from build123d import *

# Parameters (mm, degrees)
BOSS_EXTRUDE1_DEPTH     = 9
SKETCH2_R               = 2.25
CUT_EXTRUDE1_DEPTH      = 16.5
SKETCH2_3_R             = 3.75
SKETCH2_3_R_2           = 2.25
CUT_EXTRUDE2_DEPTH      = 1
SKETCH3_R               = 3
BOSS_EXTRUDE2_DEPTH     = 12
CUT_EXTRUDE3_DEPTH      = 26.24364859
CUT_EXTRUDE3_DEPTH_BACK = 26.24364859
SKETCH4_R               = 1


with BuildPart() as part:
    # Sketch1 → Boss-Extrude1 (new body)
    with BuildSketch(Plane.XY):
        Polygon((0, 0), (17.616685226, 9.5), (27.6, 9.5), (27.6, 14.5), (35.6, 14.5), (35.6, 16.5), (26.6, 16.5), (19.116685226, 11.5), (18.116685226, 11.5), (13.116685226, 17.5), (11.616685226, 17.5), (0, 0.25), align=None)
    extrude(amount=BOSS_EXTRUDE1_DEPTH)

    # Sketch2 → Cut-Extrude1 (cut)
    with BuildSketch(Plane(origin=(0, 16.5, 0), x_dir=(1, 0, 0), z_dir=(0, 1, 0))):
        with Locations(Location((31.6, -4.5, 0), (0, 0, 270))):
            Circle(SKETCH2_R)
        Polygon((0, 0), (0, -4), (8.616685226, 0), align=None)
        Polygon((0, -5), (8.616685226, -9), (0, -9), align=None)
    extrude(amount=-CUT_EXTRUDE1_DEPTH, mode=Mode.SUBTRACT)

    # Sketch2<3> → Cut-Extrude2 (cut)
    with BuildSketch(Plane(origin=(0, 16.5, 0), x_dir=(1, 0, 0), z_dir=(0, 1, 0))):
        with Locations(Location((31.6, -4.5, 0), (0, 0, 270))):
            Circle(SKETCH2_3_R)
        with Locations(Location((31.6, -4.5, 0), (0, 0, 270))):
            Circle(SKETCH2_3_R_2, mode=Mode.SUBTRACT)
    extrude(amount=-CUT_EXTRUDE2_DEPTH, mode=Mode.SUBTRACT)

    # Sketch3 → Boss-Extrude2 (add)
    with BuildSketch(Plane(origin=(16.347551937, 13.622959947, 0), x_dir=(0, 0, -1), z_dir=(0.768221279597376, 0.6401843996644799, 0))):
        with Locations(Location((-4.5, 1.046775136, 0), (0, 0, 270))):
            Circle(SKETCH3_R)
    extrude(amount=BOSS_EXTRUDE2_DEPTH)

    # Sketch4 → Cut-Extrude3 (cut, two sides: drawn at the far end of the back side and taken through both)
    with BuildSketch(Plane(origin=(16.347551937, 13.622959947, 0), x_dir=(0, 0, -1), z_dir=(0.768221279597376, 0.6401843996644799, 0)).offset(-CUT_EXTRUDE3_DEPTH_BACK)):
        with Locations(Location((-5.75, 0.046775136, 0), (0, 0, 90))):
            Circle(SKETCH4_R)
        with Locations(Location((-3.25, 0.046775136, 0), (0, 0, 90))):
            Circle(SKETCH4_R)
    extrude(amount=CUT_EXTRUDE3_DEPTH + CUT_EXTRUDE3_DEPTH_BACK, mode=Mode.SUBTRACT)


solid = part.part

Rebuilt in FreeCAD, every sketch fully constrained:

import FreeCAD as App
import Part
import Sketcher
Q = App.Units.Quantity

doc = App.newDocument("Part")
body = doc.addObject("PartDesign::Body", "Body")

# Sketch on XY plane
sketch1 = body.newObject("Sketcher::SketchObject", "Sketch")
sketch1.AttachmentSupport = (doc.getObject("XY_Plane"), [""])
sketch1.MapMode = "FlatFace"
sketch1.addGeometry(Part.LineSegment(App.Vector(0, 0, 0), App.Vector(17.62, 9.5, 0)), False)
sketch1.addGeometry(Part.LineSegment(App.Vector(17.62, 9.5, 0), App.Vector(27.6, 9.5, 0)), False)
sketch1.addGeometry(Part.LineSegment(App.Vector(27.6, 9.5, 0), App.Vector(27.6, 14.5, 0)), False)
sketch1.addGeometry(Part.LineSegment(App.Vector(27.6, 14.5, 0), App.Vector(35.6, 14.5, 0)), False)
sketch1.addGeometry(Part.LineSegment(App.Vector(35.6, 14.5, 0), App.Vector(35.6, 16.5, 0)), False)
sketch1.addGeometry(Part.LineSegment(App.Vector(35.6, 16.5, 0), App.Vector(26.6, 16.5, 0)), False)
sketch1.addGeometry(Part.LineSegment(App.Vector(26.6, 16.5, 0), App.Vector(19.12, 11.5, 0)), False)
sketch1.addGeometry(Part.LineSegment(App.Vector(19.12, 11.5, 0), App.Vector(18.12, 11.5, 0)), False)
sketch1.addGeometry(Part.LineSegment(App.Vector(18.12, 11.5, 0), App.Vector(13.12, 17.5, 0)), False)
sketch1.addGeometry(Part.LineSegment(App.Vector(13.12, 17.5, 0), App.Vector(11.62, 17.5, 0)), False)
sketch1.addGeometry(Part.LineSegment(App.Vector(11.62, 17.5, 0), App.Vector(0, 0.25, 0)), False)
sketch1.addGeometry(Part.LineSegment(App.Vector(0, 0.25, 0), App.Vector(0, 0, 0)), False)
sketch1.addConstraint(Sketcher.Constraint("Coincident", 0, 2, 1, 1))
sketch1.addConstraint(Sketcher.Constraint("Coincident", 1, 2, 2, 1))
sketch1.addConstraint(Sketcher.Constraint("Coincident", 2, 2, 3, 1))
sketch1.addConstraint(Sketcher.Constraint("Coincident", 3, 2, 4, 1))
sketch1.addConstraint(Sketcher.Constraint("Coincident", 4, 2, 5, 1))
sketch1.addConstraint(Sketcher.Constraint("Coincident", 5, 2, 6, 1))
sketch1.addConstraint(Sketcher.Constraint("Coincident", 6, 2, 7, 1))
sketch1.addConstraint(Sketcher.Constraint("Coincident", 7, 2, 8, 1))
sketch1.addConstraint(Sketcher.Constraint("Coincident", 8, 2, 9, 1))
sketch1.addConstraint(Sketcher.Constraint("Coincident", 9, 2, 10, 1))
sketch1.addConstraint(Sketcher.Constraint("Coincident", 10, 2, 11, 1))
sketch1.addConstraint(Sketcher.Constraint("Coincident", 11, 2, 0, 1))
sketch1.addConstraint(Sketcher.Constraint("Horizontal", 1))
sketch1.addConstraint(Sketcher.Constraint("Vertical", 2))
sketch1.addConstraint(Sketcher.Constraint("Horizontal", 3))
sketch1.addConstraint(Sketcher.Constraint("Vertical", 4))
sketch1.addConstraint(Sketcher.Constraint("Horizontal", 5))
sketch1.addConstraint(Sketcher.Constraint("Horizontal", 7))
sketch1.addConstraint(Sketcher.Constraint("Horizontal", 9))
sketch1.addConstraint(Sketcher.Constraint("Vertical", 11))
sketch1.addConstraint(Sketcher.Constraint("Coincident", 11, 2, -1, 1))
sketch1.addConstraint(Sketcher.Constraint("DistanceX", 3, 1, 3, 2, Q("8 mm")))
sketch1.addConstraint(Sketcher.Constraint("DistanceX", 5, 2, 5, 1, Q("9 mm")))
sketch1.addConstraint(Sketcher.Constraint("DistanceX", 7, 2, 7, 1, Q("1 mm")))
sketch1.addConstraint(Sketcher.Constraint("DistanceY", 2, 1, 2, 2, Q("5 mm")))
sketch1.addConstraint(Sketcher.Constraint("DistanceY", 4, 1, 4, 2, Q("2 mm")))
sketch1.addConstraint(Sketcher.Constraint("Distance", 6, Q("9 mm")))
sketch1.addConstraint(Sketcher.Constraint("DistanceX", 9, 2, 9, 1, Q("1.5 mm")))
sketch1.addConstraint(Sketcher.Constraint("DistanceY", 0, 2, 6, 2, Q("2 mm")))
sketch1.addConstraint(Sketcher.Constraint("DistanceX", 8, 2, 7, 2, Q("5 mm")))
sketch1.addConstraint(Sketcher.Constraint("DistanceY", 7, 2, 8, 2, Q("6 mm")))
sketch1.addConstraint(Sketcher.Constraint("DistanceX", 9, 2, 0, 2, Q("6 mm")))
sketch1.addConstraint(Sketcher.Constraint("DistanceY", 11, 2, 11, 1, Q("0.25 mm")))
sketch1.addConstraint(Sketcher.Constraint("DistanceY", -1, 1, 0, 2, Q("9.5 mm")))
sketch1.addConstraint(Sketcher.Constraint("DistanceX", -1, 1, 1, 2, Q("27.6 mm")))
pad1 = body.newObject("PartDesign::Pad", "Pad")
pad1.Profile = sketch1
pad1.Length = 9

# Sketch on XZ plane
sketch2 = body.newObject("Sketcher::SketchObject", "Sketch001")
sketch2.AttachmentSupport = (doc.getObject("XZ_Plane"), [""])
sketch2.MapMode = "FlatFace"
sketch2.AttachmentOffset = App.Placement(App.Vector(0, 0, -16.5), App.Rotation())
sketch2.addGeometry(Part.Circle(App.Vector(31.6, 4.5, 0), App.Vector(0, 0, 1), 2.2), False)
sketch2.addGeometry(Part.LineSegment(App.Vector(0, 0, 0), App.Vector(0, 4, 0)), False)
sketch2.addGeometry(Part.LineSegment(App.Vector(0, 4, 0), App.Vector(8.6, 0, 0)), False)
sketch2.addGeometry(Part.LineSegment(App.Vector(8.6, 0, 0), App.Vector(0, 0, 0)), False)
sketch2.addGeometry(Part.LineSegment(App.Vector(8.6, 9, 0), App.Vector(0, 5, 0)), False)
sketch2.addGeometry(Part.LineSegment(App.Vector(0, 5, 0), App.Vector(0, 9, 0)), False)
sketch2.addGeometry(Part.LineSegment(App.Vector(0, 9, 0), App.Vector(8.6, 9, 0)), False)
sketch2.addConstraint(Sketcher.Constraint("Coincident", 1, 2, 2, 1))
sketch2.addConstraint(Sketcher.Constraint("Coincident", 2, 2, 3, 1))
sketch2.addConstraint(Sketcher.Constraint("Coincident", 3, 2, 1, 1))
sketch2.addConstraint(Sketcher.Constraint("Coincident", 4, 2, 5, 1))
sketch2.addConstraint(Sketcher.Constraint("Coincident", 5, 2, 6, 1))
sketch2.addConstraint(Sketcher.Constraint("Coincident", 6, 2, 4, 1))
sketch2.addConstraint(Sketcher.Constraint("Vertical", 1))
sketch2.addConstraint(Sketcher.Constraint("Horizontal", 3))
sketch2.addConstraint(Sketcher.Constraint("Vertical", 5))
sketch2.addConstraint(Sketcher.Constraint("Horizontal", 6))
sketch2.addConstraint(Sketcher.Constraint("Coincident", 3, 2, -1, 1))
sketch2.addConstraint(Sketcher.Constraint("PointOnObject", 4, 2, -2))
sketch2.addConstraint(Sketcher.Constraint("Vertical", 2, 2, 6, 2))
sketch2.addConstraint(Sketcher.Constraint("Equal", 1, 5))
sketch2.addConstraint(Sketcher.Constraint("Diameter", 0, Q("4.5 mm")))
sketch2.addConstraint(Sketcher.Constraint("DistanceY", 1, 1, 1, 2, Q("4 mm")))
sketch2.addConstraint(Sketcher.Constraint("DistanceY", -1, 1, 4, 2, Q("5 mm")))
sketch2.addConstraint(Sketcher.Constraint("DistanceX", -1, 1, 0, 3, Q("31.6 mm")))
sketch2.addConstraint(Sketcher.Constraint("DistanceY", -1, 1, 0, 3, Q("4.5 mm")))
sketch2.addConstraint(Sketcher.Constraint("DistanceX", 3, 2, 3, 1, Q("8.616685 mm")))
pocket1 = body.newObject("PartDesign::Pocket", "Pocket")
pocket1.Profile = sketch2
pocket1.Length = 16.5
pocket1.Reversed = True

# Sketch on XZ plane
sketch3 = body.newObject("Sketcher::SketchObject", "Sketch002")
sketch3.AttachmentSupport = (doc.getObject("XZ_Plane"), [""])
sketch3.MapMode = "FlatFace"
sketch3.AttachmentOffset = App.Placement(App.Vector(0, 0, -16.5), App.Rotation())
sketch3.addGeometry(Part.Circle(App.Vector(31.6, 4.5, 0), App.Vector(0, 0, 1), 3.8), False)
sketch3.addGeometry(Part.Circle(App.Vector(31.6, 4.5, 0), App.Vector(0, 0, 1), 2.2), False)
sketch3.addConstraint(Sketcher.Constraint("Coincident", 1, 3, 0, 3))
sketch3.addConstraint(Sketcher.Constraint("Diameter", 0, Q("7.5 mm")))
sketch3.addConstraint(Sketcher.Constraint("Diameter", 1, Q("4.5 mm")))
sketch3.addConstraint(Sketcher.Constraint("DistanceX", -1, 1, 0, 3, Q("31.6 mm")))
sketch3.addConstraint(Sketcher.Constraint("DistanceY", -1, 1, 0, 3, Q("4.5 mm")))
pocket2 = body.newObject("PartDesign::Pocket", "Pocket001")
pocket2.Profile = sketch3
pocket2.Length = 1
pocket2.Reversed = True

# Sketch on an angled plane
sketch4 = body.newObject("Sketcher::SketchObject", "Sketch003")
sketch4.Placement = App.Placement(App.Vector(16.347552, 13.62296, 0), App.Rotation(App.Vector(0, 0, -1), App.Vector(-0.6401844, 0.76822128, 0), App.Vector(0.76822128, 0.6401844, 0), "ZXY"))
sketch4.addGeometry(Part.Circle(App.Vector(-4.5, 1, 0), App.Vector(0, 0, 1), 3), False)
sketch4.addConstraint(Sketcher.Constraint("Diameter", 0, Q("6 mm")))
sketch4.addConstraint(Sketcher.Constraint("DistanceX", 0, 3, -1, 1, Q("4.5 mm")))
sketch4.addConstraint(Sketcher.Constraint("DistanceY", -1, 1, 0, 3, Q("1.046775 mm")))
pad2 = body.newObject("PartDesign::Pad", "Pad001")
pad2.Profile = sketch4
pad2.Length = 12

# Sketch on an angled plane
sketch5 = body.newObject("Sketcher::SketchObject", "Sketch004")
sketch5.Placement = App.Placement(App.Vector(16.347552, 13.62296, 0), App.Rotation(App.Vector(0, 0, -1), App.Vector(-0.6401844, 0.76822128, 0), App.Vector(0.76822128, 0.6401844, 0), "ZXY"))
sketch5.addGeometry(Part.Circle(App.Vector(-5.8, 0, 0), App.Vector(0, 0, 1), 1), False)
sketch5.addGeometry(Part.Circle(App.Vector(-3.2, 0, 0), App.Vector(0, 0, 1), 1), False)
sketch5.addConstraint(Sketcher.Constraint("Equal", 0, 1))
sketch5.addConstraint(Sketcher.Constraint("Horizontal", 0, 3, 1, 3))
sketch5.addConstraint(Sketcher.Constraint("Diameter", 0, Q("2 mm")))
sketch5.addConstraint(Sketcher.Constraint("DistanceX", 0, 3, 1, 3, Q("2.5 mm")))
sketch5.addConstraint(Sketcher.Constraint("DistanceX", 0, 3, -1, 1, Q("5.75 mm")))
sketch5.addConstraint(Sketcher.Constraint("DistanceY", -1, 1, 0, 3, Q("0.046775 mm")))
pocket3 = body.newObject("PartDesign::Pocket", "Pocket002")
pocket3.Profile = sketch5
pocket3.Type = "ThroughAll"
pocket3.Midplane = True

doc.recompute()
